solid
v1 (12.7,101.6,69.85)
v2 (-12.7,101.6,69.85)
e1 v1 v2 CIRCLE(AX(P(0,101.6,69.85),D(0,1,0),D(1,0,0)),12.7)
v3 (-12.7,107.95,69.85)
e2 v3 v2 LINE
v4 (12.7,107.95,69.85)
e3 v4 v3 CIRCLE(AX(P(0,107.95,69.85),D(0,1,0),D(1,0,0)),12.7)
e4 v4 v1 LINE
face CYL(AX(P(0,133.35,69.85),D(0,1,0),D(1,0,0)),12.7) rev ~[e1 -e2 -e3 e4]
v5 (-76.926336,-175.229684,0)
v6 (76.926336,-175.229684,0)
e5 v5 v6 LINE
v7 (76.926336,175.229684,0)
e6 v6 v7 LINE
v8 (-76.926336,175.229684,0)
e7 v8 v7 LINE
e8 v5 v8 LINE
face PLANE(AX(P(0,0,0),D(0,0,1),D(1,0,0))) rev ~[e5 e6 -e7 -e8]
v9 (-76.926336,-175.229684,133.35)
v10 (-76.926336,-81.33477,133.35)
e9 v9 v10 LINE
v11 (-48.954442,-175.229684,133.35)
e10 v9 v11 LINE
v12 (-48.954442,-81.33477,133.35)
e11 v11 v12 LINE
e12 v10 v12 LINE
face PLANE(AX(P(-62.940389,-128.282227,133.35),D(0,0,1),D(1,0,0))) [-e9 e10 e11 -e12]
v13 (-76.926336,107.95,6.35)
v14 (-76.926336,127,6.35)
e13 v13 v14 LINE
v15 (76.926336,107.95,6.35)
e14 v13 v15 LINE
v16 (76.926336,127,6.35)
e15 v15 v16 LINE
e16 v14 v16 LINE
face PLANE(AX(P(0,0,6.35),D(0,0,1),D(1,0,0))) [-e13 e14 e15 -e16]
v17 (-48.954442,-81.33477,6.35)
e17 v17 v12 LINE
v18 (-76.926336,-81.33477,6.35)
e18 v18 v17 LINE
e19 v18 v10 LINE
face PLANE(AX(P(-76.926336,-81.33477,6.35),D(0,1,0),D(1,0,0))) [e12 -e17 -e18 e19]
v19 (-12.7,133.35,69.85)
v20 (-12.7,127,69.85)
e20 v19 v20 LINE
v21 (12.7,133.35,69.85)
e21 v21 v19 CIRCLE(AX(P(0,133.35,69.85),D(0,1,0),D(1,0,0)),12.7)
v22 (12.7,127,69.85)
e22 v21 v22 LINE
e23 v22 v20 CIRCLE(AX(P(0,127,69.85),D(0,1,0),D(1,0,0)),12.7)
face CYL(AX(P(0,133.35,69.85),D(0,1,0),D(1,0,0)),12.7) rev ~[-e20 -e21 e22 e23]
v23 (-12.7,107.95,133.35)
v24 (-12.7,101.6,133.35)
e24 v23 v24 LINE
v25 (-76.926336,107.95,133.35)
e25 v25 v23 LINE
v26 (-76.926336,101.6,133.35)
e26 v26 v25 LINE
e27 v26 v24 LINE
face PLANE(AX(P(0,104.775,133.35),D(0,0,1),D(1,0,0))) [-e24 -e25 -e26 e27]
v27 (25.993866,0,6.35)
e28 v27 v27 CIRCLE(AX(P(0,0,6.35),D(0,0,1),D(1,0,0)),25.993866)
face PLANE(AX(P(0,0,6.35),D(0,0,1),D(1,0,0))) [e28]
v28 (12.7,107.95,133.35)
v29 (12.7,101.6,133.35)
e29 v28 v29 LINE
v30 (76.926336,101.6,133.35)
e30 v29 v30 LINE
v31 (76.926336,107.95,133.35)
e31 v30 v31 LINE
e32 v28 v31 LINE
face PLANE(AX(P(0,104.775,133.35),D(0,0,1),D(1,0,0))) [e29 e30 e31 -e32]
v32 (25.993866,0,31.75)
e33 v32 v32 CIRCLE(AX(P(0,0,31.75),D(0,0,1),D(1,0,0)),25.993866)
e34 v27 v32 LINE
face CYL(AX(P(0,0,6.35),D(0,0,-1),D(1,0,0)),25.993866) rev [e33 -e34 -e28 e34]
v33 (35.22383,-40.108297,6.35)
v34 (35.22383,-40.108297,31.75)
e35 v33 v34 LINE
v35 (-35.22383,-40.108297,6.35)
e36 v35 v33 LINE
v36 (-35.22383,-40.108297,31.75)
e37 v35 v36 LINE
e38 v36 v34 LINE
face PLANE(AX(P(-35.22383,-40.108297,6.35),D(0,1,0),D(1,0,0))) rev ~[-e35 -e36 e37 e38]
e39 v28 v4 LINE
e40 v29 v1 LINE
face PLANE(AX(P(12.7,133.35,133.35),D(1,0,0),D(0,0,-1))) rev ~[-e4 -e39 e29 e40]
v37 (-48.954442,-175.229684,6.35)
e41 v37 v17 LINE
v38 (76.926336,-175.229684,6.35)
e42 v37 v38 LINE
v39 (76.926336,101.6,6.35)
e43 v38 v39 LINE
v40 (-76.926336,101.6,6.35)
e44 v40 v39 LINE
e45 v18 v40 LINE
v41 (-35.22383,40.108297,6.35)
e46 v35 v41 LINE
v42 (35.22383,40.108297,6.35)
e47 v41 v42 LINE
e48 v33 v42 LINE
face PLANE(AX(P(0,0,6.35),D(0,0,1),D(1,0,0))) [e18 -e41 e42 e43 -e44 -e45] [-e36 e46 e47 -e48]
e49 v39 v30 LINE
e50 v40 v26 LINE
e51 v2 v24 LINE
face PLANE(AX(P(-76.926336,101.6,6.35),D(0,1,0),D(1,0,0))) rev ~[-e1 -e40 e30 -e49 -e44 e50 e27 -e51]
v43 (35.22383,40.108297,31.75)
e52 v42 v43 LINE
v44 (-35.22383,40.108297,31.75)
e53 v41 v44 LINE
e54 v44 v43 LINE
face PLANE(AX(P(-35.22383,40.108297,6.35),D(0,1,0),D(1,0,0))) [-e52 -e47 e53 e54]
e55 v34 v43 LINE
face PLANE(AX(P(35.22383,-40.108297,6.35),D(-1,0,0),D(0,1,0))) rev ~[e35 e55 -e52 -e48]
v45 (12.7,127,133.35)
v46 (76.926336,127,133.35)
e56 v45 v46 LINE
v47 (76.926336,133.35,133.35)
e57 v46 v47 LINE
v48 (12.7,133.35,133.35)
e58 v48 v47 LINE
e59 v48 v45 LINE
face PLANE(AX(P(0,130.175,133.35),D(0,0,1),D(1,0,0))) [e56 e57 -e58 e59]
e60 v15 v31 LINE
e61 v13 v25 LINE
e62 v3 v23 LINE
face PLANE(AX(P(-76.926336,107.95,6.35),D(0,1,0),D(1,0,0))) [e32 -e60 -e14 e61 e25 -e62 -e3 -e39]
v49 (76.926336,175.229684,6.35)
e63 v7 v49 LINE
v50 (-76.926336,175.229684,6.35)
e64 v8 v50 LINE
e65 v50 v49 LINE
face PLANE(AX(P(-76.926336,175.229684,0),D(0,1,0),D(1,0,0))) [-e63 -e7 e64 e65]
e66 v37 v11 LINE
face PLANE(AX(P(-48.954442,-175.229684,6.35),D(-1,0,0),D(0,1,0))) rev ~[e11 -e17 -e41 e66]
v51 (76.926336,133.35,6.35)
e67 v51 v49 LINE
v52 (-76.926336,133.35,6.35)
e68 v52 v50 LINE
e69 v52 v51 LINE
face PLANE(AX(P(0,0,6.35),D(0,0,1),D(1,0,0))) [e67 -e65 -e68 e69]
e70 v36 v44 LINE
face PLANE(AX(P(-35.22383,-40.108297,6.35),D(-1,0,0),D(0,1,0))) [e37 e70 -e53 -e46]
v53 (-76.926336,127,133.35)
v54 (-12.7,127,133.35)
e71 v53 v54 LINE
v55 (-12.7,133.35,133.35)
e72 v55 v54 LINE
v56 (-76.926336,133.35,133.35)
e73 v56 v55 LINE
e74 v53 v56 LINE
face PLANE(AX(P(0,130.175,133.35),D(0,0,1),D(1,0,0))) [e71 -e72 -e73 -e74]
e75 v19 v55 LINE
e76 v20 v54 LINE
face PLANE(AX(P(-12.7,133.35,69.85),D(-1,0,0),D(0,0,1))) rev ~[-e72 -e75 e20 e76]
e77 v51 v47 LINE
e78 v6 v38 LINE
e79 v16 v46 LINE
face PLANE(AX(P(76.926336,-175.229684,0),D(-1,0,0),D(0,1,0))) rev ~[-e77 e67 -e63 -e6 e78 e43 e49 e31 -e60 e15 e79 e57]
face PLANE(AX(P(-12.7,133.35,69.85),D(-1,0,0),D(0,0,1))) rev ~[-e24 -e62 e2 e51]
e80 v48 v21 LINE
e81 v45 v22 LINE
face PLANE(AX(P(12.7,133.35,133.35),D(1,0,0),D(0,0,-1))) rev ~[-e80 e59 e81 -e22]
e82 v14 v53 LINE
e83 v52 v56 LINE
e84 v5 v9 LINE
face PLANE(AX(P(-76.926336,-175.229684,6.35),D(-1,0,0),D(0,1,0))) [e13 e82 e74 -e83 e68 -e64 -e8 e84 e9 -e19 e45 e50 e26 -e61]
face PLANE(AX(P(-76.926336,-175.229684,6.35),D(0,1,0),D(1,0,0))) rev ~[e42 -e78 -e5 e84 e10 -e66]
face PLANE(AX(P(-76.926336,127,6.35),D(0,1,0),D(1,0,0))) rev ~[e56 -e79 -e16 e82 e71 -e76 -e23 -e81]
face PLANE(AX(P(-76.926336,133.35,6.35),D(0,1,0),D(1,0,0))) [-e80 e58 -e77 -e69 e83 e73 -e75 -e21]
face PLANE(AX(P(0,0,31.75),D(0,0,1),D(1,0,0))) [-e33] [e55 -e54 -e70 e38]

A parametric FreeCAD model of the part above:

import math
import FreeCAD as App
import Part
import Sketcher
from FreeCAD import Vector
Q = App.Units.Quantity


def add_polygon(sketch, points):
    """Adds a closed chain of lines whose ends are joined by coincident constraints."""
    first, n = sketch.GeometryCount, len(points)
    for a, b in zip(points, points[1:] + points[:1]):
        sketch.addGeometry(Part.LineSegment(App.Vector(*a, 0), App.Vector(*b, 0)), False)
    for i in range(n):
        sketch.addConstraint(Sketcher.Constraint("Coincident", first + i, 2, first + (i + 1) % n, 1))

doc = App.newDocument("Part")
params = doc.addObject("Spreadsheet::Sheet", "Params")
for row, (alias, value) in enumerate([
    ("pad1_length", "0.25 in"),
    ("sketch2_height", "0.25 in"),
    ("pad2_length", "5 in"),
    ("sketch3_height", "0.25 in"),
    ("pad3_length", "5 in"),
    ("sketch4_radius", "0.5 in"),
    ("sketch4_height", "2.5 in"),
    ("pocket1_length", "3.81 in"),
    ("pad4_length", "1 in"),
    ("pad5_length", "5 in"),
], start=1):
    params.set(f"A{row}", alias)
    params.set(f"B{row}", "=" + value)
    params.setAlias(f"B{row}", alias)

body = doc.addObject("PartDesign::Body", "Body")

# Sketch on XY plane
sketch1 = doc.addObject("Sketcher::SketchObject", "Sketch")
body.addObject(sketch1)
sketch1.AttachmentSupport = (doc.XY_Plane, [""])
sketch1.MapMode = "FlatFace"
add_polygon(sketch1, [(-76.926336, 175.229684), (-76.926336, -175.229684), (76.926336, -175.229684), (76.926336, 175.229684)])  # lines 0-3
sketch1.addConstraint([
    Sketcher.Constraint("Vertical", 0),
    Sketcher.Constraint("Horizontal", 1),
    Sketcher.Constraint("Vertical", 2),
    Sketcher.Constraint("Horizontal", 3),
    Sketcher.Constraint("Symmetric", 0, 2, 2, 2, -1, 1),
    Sketcher.Constraint("DistanceY", 0, 2, 0, 1, 350.459368),
    Sketcher.Constraint("DistanceX", 1, 1, 1, 2, 153.852672),
])
pad1 = doc.addObject("PartDesign::Pad", "Pad")
body.addObject(pad1)
pad1.Profile = sketch1
pad1.setExpression("Length", "Params.pad1_length")

# Sketch on XY plane
sketch2 = doc.addObject("Sketcher::SketchObject", "Sketch001")
body.addObject(sketch2)
sketch2.AttachmentSupport = (doc.XY_Plane, [""])
sketch2.MapMode = "FlatFace"
sketch2.AttachmentOffset = App.Placement(Vector(0, 0, 0.25 * 25.4), App.Rotation())
add_polygon(sketch2, [(-76.926336, 133.35), (-76.926336, 127), (76.926336, 127), (76.926336, 133.35)])  # lines 0-3
sketch2.addConstraint([
    Sketcher.Constraint("Vertical", 0),
    Sketcher.Constraint("Horizontal", 1),
    Sketcher.Constraint("Vertical", 2),
    Sketcher.Constraint("Horizontal", 3),
    Sketcher.Constraint("DistanceY", -1, 1, 0, 2, Q("5 in")),
    Sketcher.Constraint("DistanceY", 0, 2, 0, 1, Q("0.25 in")),
    Sketcher.Constraint("DistanceX", 1, 1, 1, 2, 153.852672),
    Sketcher.Constraint("DistanceX", 0, 2, -1, 1, 76.926336),
])
sketch2.setExpression("Constraints[9]", "Params.sketch2_height")
pad2 = doc.addObject("PartDesign::Pad", "Pad001")
body.addObject(pad2)
pad2.Profile = sketch2
pad2.setExpression("Length", "Params.pad2_length")

# Sketch on XY plane
sketch3 = doc.addObject("Sketcher::SketchObject", "Sketch002")
body.addObject(sketch3)
sketch3.AttachmentSupport = (doc.XY_Plane, [""])
sketch3.MapMode = "FlatFace"
sketch3.AttachmentOffset = App.Placement(Vector(0, 0, 0.25 * 25.4), App.Rotation())
add_polygon(sketch3, [(-76.926336, 107.95), (-76.926336, 101.6), (76.926336, 101.6), (76.926336, 107.95)])  # lines 0-3
sketch3.addConstraint([
    Sketcher.Constraint("Vertical", 0),
    Sketcher.Constraint("Horizontal", 1),
    Sketcher.Constraint("Vertical", 2),
    Sketcher.Constraint("Horizontal", 3),
    Sketcher.Constraint("DistanceY", -1, 1, 0, 2, Q("4 in")),
    Sketcher.Constraint("DistanceY", 0, 2, 0, 1, Q("0.25 in")),
    Sketcher.Constraint("DistanceX", 1, 1, 1, 2, 153.852672),
    Sketcher.Constraint("DistanceX", 0, 2, -1, 1, 76.926336),
])
sketch3.setExpression("Constraints[9]", "Params.sketch3_height")
pad3 = doc.addObject("PartDesign::Pad", "Pad002")
body.addObject(pad3)
pad3.Profile = sketch3
pad3.setExpression("Length", "Params.pad3_length")

# Sketch on XZ plane
sketch4 = doc.addObject("Sketcher::SketchObject", "Sketch003")
body.addObject(sketch4)
sketch4.AttachmentSupport = (doc.XZ_Plane, [""])
sketch4.MapMode = "FlatFace"
sketch4.AttachmentOffset = App.Placement(Vector(0, 0, -5.25 * 25.4), App.Rotation())
sketch4.addGeometry([
    Part.LineSegment(Vector(-12.7, 133.35, 0), Vector(12.7, 133.35, 0)),
    Part.LineSegment(Vector(12.7, 133.35, 0), Vector(12.7, 69.85, 0)),
    Part.ArcOfCircle(Part.Circle(Vector(0, 69.85, 0), Vector(0, 0, 1), 12.7), math.radians(180), math.radians(360)),
    Part.LineSegment(Vector(-12.7, 69.85, 0), Vector(-12.7, 133.35, 0)),
], False)
sketch4.addConstraint([
    Sketcher.Constraint("Coincident", 0, 2, 1, 1),
    Sketcher.Constraint("Tangent", 1, 2, 2, 2),
    Sketcher.Constraint("Tangent", 2, 1, 3, 1),
    Sketcher.Constraint("Coincident", 3, 2, 0, 1),
    Sketcher.Constraint("Horizontal", 0),
    Sketcher.Constraint("Vertical", 1),
    Sketcher.Constraint("Vertical", 3),
    Sketcher.Constraint("PointOnObject", 2, 3, -2),
    Sketcher.Constraint("Radius", 2, Q("0.5 in")),
    Sketcher.Constraint("DistanceY", 1, 2, 1, 1, Q("2.5 in")),
    Sketcher.Constraint("DistanceY", -1, 1, 2, 3, Q("2.75 in")),
])
sketch4.setExpression("Constraints[8]", "Params.sketch4_radius")
sketch4.setExpression("Constraints[9]", "Params.sketch4_height")
pocket1 = doc.addObject("PartDesign::Pocket", "Pocket")
body.addObject(pocket1)
pocket1.Profile = sketch4
pocket1.setExpression("Length", "Params.pocket1_length")
pocket1.Reversed = True

# Sketch on XY plane
sketch5 = doc.addObject("Sketcher::SketchObject", "Sketch004")
body.addObject(sketch5)
sketch5.AttachmentSupport = (doc.XY_Plane, [""])
sketch5.MapMode = "FlatFace"
sketch5.AttachmentOffset = App.Placement(Vector(0, 0, 0.25 * 25.4), App.Rotation())
add_polygon(sketch5, [(-35.22383, 40.108297), (-35.22383, -40.108297), (35.22383, -40.108297), (35.22383, 40.108297)])  # lines 0-3
sketch5.addGeometry(Part.Circle(Vector(0, 0, 0), Vector(0, 0, 1), 25.993866), False)  # 4
sketch5.addConstraint([
    Sketcher.Constraint("Vertical", 0),
    Sketcher.Constraint("Horizontal", 1),
    Sketcher.Constraint("Vertical", 2),
    Sketcher.Constraint("Horizontal", 3),
    Sketcher.Constraint("Coincident", 4, 3, -1, 1),
    Sketcher.Constraint("Symmetric", 0, 2, 2, 2, -1, 1),
    Sketcher.Constraint("Diameter", 4, 51.987732),
    Sketcher.Constraint("DistanceX", 1, 1, 1, 2, 70.44766),
    Sketcher.Constraint("DistanceY", 0, 2, 0, 1, 80.216594),
])
pad4 = doc.addObject("PartDesign::Pad", "Pad003")
body.addObject(pad4)
pad4.Profile = sketch5
pad4.setExpression("Length", "Params.pad4_length")

# Sketch on XY plane
sketch6 = doc.addObject("Sketcher::SketchObject", "Sketch005")
body.addObject(sketch6)
sketch6.AttachmentSupport = (doc.XY_Plane, [""])
sketch6.MapMode = "FlatFace"
sketch6.AttachmentOffset = App.Placement(Vector(0, 0, 0.25 * 25.4), App.Rotation())
add_polygon(sketch6, [(-76.926336, -81.33477), (-76.926336, -175.229684), (-48.954442, -175.229684), (-48.954442, -81.33477)])  # lines 0-3
sketch6.addConstraint([
    Sketcher.Constraint("Vertical", 0),
    Sketcher.Constraint("Horizontal", 1),
    Sketcher.Constraint("Vertical", 2),
    Sketcher.Constraint("Horizontal", 3),
    Sketcher.Constraint("DistanceX", 1, 1, 1, 2, 27.971894),
    Sketcher.Constraint("DistanceY", 0, 2, 0, 1, 93.894914),
    Sketcher.Constraint("DistanceY", 2, 2, -1, 1, 81.33477),
    Sketcher.Constraint("DistanceX", 0, 2, -1, 1, 76.926336),
])
pad5 = doc.addObject("PartDesign::Pad", "Pad004")
body.addObject(pad5)
pad5.Profile = sketch6
pad5.setExpression("Length", "Params.pad5_length")

doc.recompute()
